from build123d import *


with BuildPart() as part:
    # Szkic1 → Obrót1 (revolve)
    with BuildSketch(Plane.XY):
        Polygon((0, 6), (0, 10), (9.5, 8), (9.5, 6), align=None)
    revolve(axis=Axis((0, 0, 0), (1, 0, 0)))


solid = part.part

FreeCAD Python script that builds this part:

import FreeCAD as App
import Part
import Sketcher

V = App.Vector
Q = App.Units.Quantity


def add_polygon(sketch, points):
    """Adds a closed chain of lines whose ends are joined by coincident constraints."""
    first, n = sketch.GeometryCount, len(points)
    for a, b in zip(points, points[1:] + points[:1]):
        sketch.addGeometry(Part.LineSegment(App.Vector(*a, 0), App.Vector(*b, 0)), False)
    for i in range(n):
        sketch.addConstraint(Sketcher.Constraint("Coincident", first + i, 2, first + (i + 1) % n, 1))

doc = App.newDocument("Part")
body = doc.addObject("PartDesign::Body", "Body")

# Sketch on XY plane
sketch1 = doc.addObject("Sketcher::SketchObject", "Sketch")
body.addObject(sketch1)
sketch1.AttachmentSupport = (doc.XY_Plane, [""])
sketch1.MapMode = "FlatFace"
add_polygon(sketch1, [(0, 10), (0, 6), (9.5, 6), (9.5, 8)])  # lines 0-3
sketch1.addConstraint([
    Sketcher.Constraint("Vertical", 0),
    Sketcher.Constraint("Horizontal", 1),
    Sketcher.Constraint("Vertical", 2),
    Sketcher.Constraint("PointOnObject", 0, 2, -2),
    Sketcher.Constraint("DistanceY", 0, 2, 0, 1, Q("4 mm")),
    Sketcher.Constraint("DistanceY", 2, 1, 2, 2, Q("2 mm")),
    Sketcher.Constraint("DistanceX", 1, 1, 1, 2, Q("9.5 mm")),
    Sketcher.Constraint("DistanceY", -1, 1, 0, 2, Q("6 mm")),
])
revolution = doc.addObject("PartDesign::Revolution", "Revolution")
body.addObject(revolution)
revolution.Profile = sketch1
revolution.ReferenceAxis = (sketch1, ["H_Axis"])
revolution.Angle = 360

doc.recompute()
